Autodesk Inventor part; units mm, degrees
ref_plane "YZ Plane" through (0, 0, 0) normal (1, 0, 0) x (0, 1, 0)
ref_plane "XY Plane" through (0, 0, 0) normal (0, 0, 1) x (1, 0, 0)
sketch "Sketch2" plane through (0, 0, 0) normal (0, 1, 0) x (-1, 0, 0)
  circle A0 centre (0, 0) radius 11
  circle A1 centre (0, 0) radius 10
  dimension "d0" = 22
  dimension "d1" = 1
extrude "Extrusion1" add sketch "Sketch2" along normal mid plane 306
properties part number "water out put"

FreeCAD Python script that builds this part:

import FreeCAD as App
import Part
import Sketcher
Q = App.Units.Quantity

doc = App.newDocument("Part")
params = doc.addObject("Spreadsheet::Sheet", "Params")
for row, (alias, value) in enumerate([
    ("sketch1_diameter", "22 mm"),
    ("sketch1_diameter2", "20 mm"),
    ("pad1_length", "306 mm"),
], start=1):
    params.set(f"A{row}", alias)
    params.set(f"B{row}", "=" + value)
    params.setAlias(f"B{row}", alias)

body = doc.addObject("PartDesign::Body", "Body")

# Sketch on XZ plane
sketch1 = body.newObject("Sketcher::SketchObject", "Sketch")
sketch1.AttachmentSupport = (doc.getObject("XZ_Plane"), [""])
sketch1.MapMode = "FlatFace"
sketch1.addGeometry([
    Part.Circle(App.Vector(0, 0, 0), App.Vector(0, 0, 1), 11),
    Part.Circle(App.Vector(0, 0, 0), App.Vector(0, 0, 1), 10),
], False)
sketch1.addConstraint([
    Sketcher.Constraint("Coincident", 0, 3, -1, 1),
    Sketcher.Constraint("Coincident", 1, 3, -1, 1),
    Sketcher.Constraint("Diameter", 0, Q("22 mm")),
    Sketcher.Constraint("Diameter", 1, Q("20 mm")),
])
sketch1.setExpression("Constraints[2]", "Params.sketch1_diameter")
sketch1.setExpression("Constraints[3]", "Params.sketch1_diameter2")
pad1 = body.newObject("PartDesign::Pad", "Pad")
pad1.Profile = sketch1
pad1.setExpression("Length", "Params.pad1_length")
pad1.Midplane = True

doc.recompute()
